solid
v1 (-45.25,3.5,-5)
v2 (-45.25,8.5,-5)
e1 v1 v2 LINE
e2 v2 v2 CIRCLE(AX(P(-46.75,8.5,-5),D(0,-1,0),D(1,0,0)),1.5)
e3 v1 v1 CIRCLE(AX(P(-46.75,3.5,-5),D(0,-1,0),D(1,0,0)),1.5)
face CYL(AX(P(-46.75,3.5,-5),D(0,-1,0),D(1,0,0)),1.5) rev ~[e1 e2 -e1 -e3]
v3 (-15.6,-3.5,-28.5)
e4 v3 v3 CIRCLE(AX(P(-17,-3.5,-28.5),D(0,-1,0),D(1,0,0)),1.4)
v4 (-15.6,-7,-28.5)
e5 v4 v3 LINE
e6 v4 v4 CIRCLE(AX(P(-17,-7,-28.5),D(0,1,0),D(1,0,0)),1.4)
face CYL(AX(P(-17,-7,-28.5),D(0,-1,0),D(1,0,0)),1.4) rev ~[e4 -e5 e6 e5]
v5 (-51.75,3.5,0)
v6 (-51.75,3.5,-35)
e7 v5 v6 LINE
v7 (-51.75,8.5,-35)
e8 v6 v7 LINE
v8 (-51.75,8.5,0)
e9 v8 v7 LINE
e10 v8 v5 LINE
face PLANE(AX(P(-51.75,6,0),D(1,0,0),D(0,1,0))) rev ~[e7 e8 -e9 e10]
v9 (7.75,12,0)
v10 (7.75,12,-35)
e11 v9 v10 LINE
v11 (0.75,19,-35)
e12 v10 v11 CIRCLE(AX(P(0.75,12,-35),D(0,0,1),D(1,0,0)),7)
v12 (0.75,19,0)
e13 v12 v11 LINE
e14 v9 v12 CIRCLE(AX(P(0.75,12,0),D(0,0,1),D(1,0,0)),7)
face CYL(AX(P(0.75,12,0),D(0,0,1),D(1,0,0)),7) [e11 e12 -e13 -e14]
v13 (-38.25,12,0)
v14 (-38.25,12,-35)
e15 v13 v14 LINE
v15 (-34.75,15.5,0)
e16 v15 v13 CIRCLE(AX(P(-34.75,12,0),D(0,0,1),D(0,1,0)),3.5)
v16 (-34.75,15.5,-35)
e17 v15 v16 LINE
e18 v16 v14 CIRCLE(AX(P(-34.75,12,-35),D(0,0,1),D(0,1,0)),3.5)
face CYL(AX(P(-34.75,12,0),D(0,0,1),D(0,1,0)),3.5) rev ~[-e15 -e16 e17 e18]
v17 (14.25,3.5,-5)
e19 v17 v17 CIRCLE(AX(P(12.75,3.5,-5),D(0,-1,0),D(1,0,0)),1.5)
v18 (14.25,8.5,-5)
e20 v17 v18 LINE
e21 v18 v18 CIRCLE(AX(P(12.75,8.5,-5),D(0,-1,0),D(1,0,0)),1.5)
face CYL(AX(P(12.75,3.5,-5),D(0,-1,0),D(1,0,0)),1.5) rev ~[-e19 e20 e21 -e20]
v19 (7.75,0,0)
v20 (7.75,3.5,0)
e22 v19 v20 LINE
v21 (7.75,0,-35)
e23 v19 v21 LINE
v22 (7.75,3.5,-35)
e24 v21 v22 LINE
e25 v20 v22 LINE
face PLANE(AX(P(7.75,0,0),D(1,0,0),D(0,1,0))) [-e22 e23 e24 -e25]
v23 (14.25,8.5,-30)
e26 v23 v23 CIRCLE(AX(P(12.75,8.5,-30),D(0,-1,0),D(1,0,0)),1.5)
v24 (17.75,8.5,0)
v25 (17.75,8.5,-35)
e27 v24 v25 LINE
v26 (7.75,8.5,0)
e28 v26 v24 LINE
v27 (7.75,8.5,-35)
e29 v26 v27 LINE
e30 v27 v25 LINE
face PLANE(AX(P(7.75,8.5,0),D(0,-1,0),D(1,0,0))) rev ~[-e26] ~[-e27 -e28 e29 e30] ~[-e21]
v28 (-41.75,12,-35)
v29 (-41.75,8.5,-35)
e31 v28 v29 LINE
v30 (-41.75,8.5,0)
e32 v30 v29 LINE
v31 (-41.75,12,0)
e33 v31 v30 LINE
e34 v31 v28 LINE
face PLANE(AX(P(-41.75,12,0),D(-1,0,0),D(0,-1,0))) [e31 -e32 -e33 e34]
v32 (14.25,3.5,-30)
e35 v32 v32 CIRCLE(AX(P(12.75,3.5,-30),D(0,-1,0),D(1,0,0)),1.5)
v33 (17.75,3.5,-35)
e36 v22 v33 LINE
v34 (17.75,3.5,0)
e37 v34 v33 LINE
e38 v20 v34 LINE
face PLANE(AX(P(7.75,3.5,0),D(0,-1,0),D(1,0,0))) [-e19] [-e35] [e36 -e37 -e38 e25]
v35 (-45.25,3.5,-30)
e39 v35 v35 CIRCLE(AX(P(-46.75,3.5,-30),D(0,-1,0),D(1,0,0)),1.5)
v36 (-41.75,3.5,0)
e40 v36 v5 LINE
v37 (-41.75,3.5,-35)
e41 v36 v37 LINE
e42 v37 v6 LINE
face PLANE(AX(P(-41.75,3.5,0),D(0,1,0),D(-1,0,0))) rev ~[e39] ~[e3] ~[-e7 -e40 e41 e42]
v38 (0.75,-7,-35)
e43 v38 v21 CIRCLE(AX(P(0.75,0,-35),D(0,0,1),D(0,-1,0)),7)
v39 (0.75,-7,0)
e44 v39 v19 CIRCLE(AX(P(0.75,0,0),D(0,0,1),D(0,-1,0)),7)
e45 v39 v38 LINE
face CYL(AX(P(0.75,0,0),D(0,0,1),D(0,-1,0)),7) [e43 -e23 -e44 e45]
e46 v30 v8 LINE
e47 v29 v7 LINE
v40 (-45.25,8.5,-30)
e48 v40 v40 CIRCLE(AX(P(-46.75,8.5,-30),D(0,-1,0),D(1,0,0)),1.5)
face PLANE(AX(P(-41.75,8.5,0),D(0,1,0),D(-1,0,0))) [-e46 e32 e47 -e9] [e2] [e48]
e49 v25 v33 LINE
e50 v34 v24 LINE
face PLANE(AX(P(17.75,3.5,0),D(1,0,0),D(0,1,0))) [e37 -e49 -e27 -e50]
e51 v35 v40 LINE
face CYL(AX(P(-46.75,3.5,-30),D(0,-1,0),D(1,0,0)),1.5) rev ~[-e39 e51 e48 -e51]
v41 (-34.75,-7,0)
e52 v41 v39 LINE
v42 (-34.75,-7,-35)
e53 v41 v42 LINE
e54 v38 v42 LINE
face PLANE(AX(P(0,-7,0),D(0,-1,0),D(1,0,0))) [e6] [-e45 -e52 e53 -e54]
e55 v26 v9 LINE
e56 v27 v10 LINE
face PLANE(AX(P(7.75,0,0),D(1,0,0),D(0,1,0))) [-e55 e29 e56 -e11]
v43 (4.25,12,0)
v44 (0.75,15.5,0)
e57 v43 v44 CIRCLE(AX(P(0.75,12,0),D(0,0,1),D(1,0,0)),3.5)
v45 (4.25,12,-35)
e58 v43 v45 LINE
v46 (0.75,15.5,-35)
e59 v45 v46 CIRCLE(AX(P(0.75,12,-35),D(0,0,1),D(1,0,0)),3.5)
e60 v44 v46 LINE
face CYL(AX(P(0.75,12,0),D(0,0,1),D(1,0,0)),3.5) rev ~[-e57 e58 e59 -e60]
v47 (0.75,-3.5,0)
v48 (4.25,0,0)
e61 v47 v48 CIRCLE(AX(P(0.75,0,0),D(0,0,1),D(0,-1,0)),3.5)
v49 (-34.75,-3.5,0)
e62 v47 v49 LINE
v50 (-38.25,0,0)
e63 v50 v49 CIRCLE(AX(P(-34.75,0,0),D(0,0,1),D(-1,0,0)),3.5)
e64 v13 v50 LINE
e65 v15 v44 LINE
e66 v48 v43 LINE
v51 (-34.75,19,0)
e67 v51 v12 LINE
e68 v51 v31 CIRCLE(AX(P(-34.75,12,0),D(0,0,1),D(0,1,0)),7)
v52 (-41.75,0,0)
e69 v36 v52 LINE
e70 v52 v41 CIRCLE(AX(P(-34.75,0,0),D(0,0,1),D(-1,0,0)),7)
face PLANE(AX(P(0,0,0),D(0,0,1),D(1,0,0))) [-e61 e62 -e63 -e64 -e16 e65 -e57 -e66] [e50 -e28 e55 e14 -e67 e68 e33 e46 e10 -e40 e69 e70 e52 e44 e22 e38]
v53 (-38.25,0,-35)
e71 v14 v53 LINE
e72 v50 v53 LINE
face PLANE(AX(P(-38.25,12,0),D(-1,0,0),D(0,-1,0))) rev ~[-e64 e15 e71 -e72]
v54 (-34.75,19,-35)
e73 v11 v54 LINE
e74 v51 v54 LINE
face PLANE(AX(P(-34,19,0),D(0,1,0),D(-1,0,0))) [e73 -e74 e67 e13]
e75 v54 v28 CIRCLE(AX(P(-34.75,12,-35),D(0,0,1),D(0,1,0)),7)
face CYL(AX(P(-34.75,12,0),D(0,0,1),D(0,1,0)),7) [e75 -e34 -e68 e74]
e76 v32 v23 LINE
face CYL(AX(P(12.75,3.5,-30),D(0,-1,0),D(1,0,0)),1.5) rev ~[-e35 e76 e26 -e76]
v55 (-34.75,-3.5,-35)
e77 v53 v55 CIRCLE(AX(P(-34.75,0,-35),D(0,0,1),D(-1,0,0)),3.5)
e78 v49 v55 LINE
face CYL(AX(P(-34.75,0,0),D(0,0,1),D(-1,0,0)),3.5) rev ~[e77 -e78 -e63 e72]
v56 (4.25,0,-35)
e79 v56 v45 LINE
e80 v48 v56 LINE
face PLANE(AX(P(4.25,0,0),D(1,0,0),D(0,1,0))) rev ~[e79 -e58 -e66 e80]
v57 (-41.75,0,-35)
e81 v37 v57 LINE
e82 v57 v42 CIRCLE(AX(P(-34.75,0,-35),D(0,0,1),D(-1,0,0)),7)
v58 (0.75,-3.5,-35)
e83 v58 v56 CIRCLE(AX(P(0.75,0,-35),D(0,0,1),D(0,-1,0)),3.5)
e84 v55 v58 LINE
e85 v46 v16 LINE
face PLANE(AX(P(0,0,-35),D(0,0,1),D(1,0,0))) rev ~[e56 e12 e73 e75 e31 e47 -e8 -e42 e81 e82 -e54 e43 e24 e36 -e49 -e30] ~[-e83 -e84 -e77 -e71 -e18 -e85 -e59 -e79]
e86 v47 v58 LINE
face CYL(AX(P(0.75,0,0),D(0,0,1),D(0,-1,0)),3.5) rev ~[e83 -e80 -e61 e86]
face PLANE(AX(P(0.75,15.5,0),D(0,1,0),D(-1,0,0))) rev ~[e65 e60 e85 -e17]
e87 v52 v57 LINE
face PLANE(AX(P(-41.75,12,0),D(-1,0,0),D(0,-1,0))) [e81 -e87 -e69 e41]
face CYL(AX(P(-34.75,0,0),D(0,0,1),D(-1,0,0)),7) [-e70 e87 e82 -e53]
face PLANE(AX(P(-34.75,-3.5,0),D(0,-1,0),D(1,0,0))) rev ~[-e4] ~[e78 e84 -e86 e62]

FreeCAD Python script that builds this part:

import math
import FreeCAD as App
import Part
import Sketcher

V = App.Vector
Q = App.Units.Quantity


def add_polygon(sketch, points):
    """Adds a closed chain of lines whose ends are joined by coincident constraints."""
    first, n = sketch.GeometryCount, len(points)
    for a, b in zip(points, points[1:] + points[:1]):
        sketch.addGeometry(Part.LineSegment(App.Vector(*a, 0), App.Vector(*b, 0)), False)
    for i in range(n):
        sketch.addConstraint(Sketcher.Constraint("Coincident", first + i, 2, first + (i + 1) % n, 1))

doc = App.newDocument("Part")
params = doc.addObject("Spreadsheet::Sheet", "Params")
for row, (alias, value) in enumerate([
    ("sketch1_radius", "3.5 mm"),
    ("sketch1_radius2", "7 mm"),
    ("sketch1_height", "12 mm"),
    ("sketch1_width", "35.5 mm"),
    ("pad1_length", "35 mm"),
    ("sketch2_width", "10 mm"),
    ("sketch2_height", "5 mm"),
    ("pad2_length", "35 mm"),
    ("sketch3_diameter", "3 mm"),
    ("pocket1_length", "10 mm"),
    ("sketch4_diameter", "2.8 mm"),
    ("pocket2_length", "10 mm"),
], start=1):
    params.set(f"A{row}", alias)
    params.set(f"B{row}", "=" + value)
    params.setAlias(f"B{row}", alias)

body = doc.addObject("PartDesign::Body", "Body")

# Sketch on XY plane
sketch1 = body.newObject("Sketcher::SketchObject", "Sketch")
sketch1.AttachmentSupport = (doc.getObject("XY_Plane"), [""])
sketch1.MapMode = "FlatFace"
sketch1.addGeometry([
    Part.ArcOfCircle(Part.Circle(V(-34.75, 12, 0), V(0, 0, 1), 7), math.radians(90), math.radians(180)),  # 0
    Part.LineSegment(V(-41.75, 12, 0), V(-41.75, 0, 0)),  # 1
    Part.ArcOfCircle(Part.Circle(V(-34.75, 0, 0), V(0, 0, 1), 7), math.radians(180), math.radians(270)),  # 2
    Part.LineSegment(V(-34.75, -7, 0), V(0.75, -7, 0)),  # 3
    Part.ArcOfCircle(Part.Circle(V(0.75, 0, 0), V(0, 0, 1), 7), math.radians(-90), math.radians(0)),  # 4
    Part.LineSegment(V(7.75, 0, 0), V(7.75, 12, 0)),  # 5
    Part.ArcOfCircle(Part.Circle(V(0.75, 12, 0), V(0, 0, 1), 7), math.radians(0), math.radians(90)),  # 6
    Part.LineSegment(V(0.75, 19, 0), V(-34.75, 19, 0)),  # 7
    Part.LineSegment(V(-38.25, 0, 0), V(-38.25, 12, 0)),  # 8
    Part.ArcOfCircle(Part.Circle(V(-34.75, 12, 0), V(0, 0, 1), 3.5), math.radians(90), math.radians(180)),  # 9
    Part.LineSegment(V(-34.75, 15.5, 0), V(0.75, 15.5, 0)),  # 10
    Part.ArcOfCircle(Part.Circle(V(0.75, 12, 0), V(0, 0, 1), 3.5), math.radians(0), math.radians(90)),  # 11
    Part.LineSegment(V(4.25, 12, 0), V(4.25, 0, 0)),  # 12
    Part.ArcOfCircle(Part.Circle(V(0.75, 0, 0), V(0, 0, 1), 3.5), math.radians(-90), math.radians(0)),  # 13
    Part.LineSegment(V(0.75, -3.5, 0), V(-34.75, -3.5, 0)),  # 14
    Part.ArcOfCircle(Part.Circle(V(-34.75, 0, 0), V(0, 0, 1), 3.5), math.radians(180), math.radians(270)),  # 15
], False)
sketch1.addConstraint([
    Sketcher.Constraint("Tangent", 0, 2, 1, 1),
    Sketcher.Constraint("Tangent", 1, 2, 2, 1),
    Sketcher.Constraint("Tangent", 2, 2, 3, 1),
    Sketcher.Constraint("Tangent", 3, 2, 4, 1),
    Sketcher.Constraint("Tangent", 4, 2, 5, 1),
    Sketcher.Constraint("Tangent", 5, 2, 6, 1),
    Sketcher.Constraint("Tangent", 6, 2, 7, 1),
    Sketcher.Constraint("Tangent", 7, 2, 0, 1),
    Sketcher.Constraint("Tangent", 8, 2, 9, 2),
    Sketcher.Constraint("Tangent", 9, 1, 10, 1),
    Sketcher.Constraint("Tangent", 10, 2, 11, 2),
    Sketcher.Constraint("Tangent", 11, 1, 12, 1),
    Sketcher.Constraint("Tangent", 12, 2, 13, 2),
    Sketcher.Constraint("Tangent", 13, 1, 14, 1),
    Sketcher.Constraint("Tangent", 14, 2, 15, 2),
    Sketcher.Constraint("Tangent", 15, 1, 8, 1),
    Sketcher.Constraint("Vertical", 1),
    Sketcher.Constraint("Horizontal", 3),
    Sketcher.Constraint("Vertical", 5),
    Sketcher.Constraint("Horizontal", 7),
    Sketcher.Constraint("Vertical", 8),
    Sketcher.Constraint("Horizontal", 10),
    Sketcher.Constraint("Vertical", 12),
    Sketcher.Constraint("Horizontal", 14),
    Sketcher.Constraint("Coincident", 9, 3, 0, 3),
    Sketcher.Constraint("Coincident", 11, 3, 6, 3),
    Sketcher.Constraint("Coincident", 13, 3, 4, 3),
    Sketcher.Constraint("Equal", 0, 2),
    Sketcher.Constraint("Equal", 2, 4),
    Sketcher.Constraint("Equal", 4, 6),
    Sketcher.Constraint("Equal", 13, 15),
    Sketcher.Constraint("PointOnObject", 2, 3, -1),
    Sketcher.Constraint("Radius", 9, Q("3.5 mm")),
    Sketcher.Constraint("Radius", 0, Q("7 mm")),
    Sketcher.Constraint("DistanceY", 1, 2, 1, 1, Q("12 mm")),
    Sketcher.Constraint("DistanceX", -1, 1, 4, 3, Q("0.75 mm")),
    Sketcher.Constraint("DistanceX", 3, 1, 3, 2, Q("35.5 mm")),
])
sketch1.setExpression("Constraints[32]", "Params.sketch1_radius")
sketch1.setExpression("Constraints[33]", "Params.sketch1_radius2")
sketch1.setExpression("Constraints[34]", "Params.sketch1_height")
sketch1.setExpression("Constraints[36]", "Params.sketch1_width")
pad1 = body.newObject("PartDesign::Pad", "Pad")
pad1.Profile = sketch1
pad1.setExpression("Length", "Params.pad1_length")
pad1.Reversed = True

# Sketch on XY plane
sketch2 = body.newObject("Sketcher::SketchObject", "Sketch001")
sketch2.AttachmentSupport = (doc.getObject("XY_Plane"), [""])
sketch2.MapMode = "FlatFace"
add_polygon(sketch2, [(-41.75, 8.5), (-51.75, 8.5), (-51.75, 3.5), (-41.75, 3.5)])  # lines 0-3
add_polygon(sketch2, [(7.75, 3.5), (17.75, 3.5), (17.75, 8.5), (7.75, 8.5)])  # lines 4-7
sketch2.addConstraint([
    Sketcher.Constraint("Horizontal", 0),
    Sketcher.Constraint("Vertical", 1),
    Sketcher.Constraint("Horizontal", 2),
    Sketcher.Constraint("Vertical", 3),
    Sketcher.Constraint("Horizontal", 4),
    Sketcher.Constraint("Vertical", 5),
    Sketcher.Constraint("Horizontal", 6),
    Sketcher.Constraint("Vertical", 7),
    Sketcher.Constraint("Horizontal", 2, 2, 4, 2),
    Sketcher.Constraint("Horizontal", 3, 2, 5, 2),
    Sketcher.Constraint("Equal", 2, 4),
    Sketcher.Constraint("DistanceX", 0, 2, 0, 1, Q("10 mm")),
    Sketcher.Constraint("DistanceY", 1, 2, 1, 1, Q("5 mm")),
    Sketcher.Constraint("DistanceY", -1, 1, 0, 2, Q("8.5 mm")),
    Sketcher.Constraint("DistanceX", 2, 2, 4, 2, Q("59.5 mm")),
    Sketcher.Constraint("DistanceX", 0, 2, -1, 1, Q("51.75 mm")),
])
sketch2.setExpression("Constraints[19]", "Params.sketch2_width")
sketch2.setExpression("Constraints[20]", "Params.sketch2_height")
pad2 = body.newObject("PartDesign::Pad", "Pad001")
pad2.Profile = sketch2
pad2.setExpression("Length", "Params.pad2_length")
pad2.Reversed = True

# Sketch on XZ plane
sketch3 = body.newObject("Sketcher::SketchObject", "Sketch002")
sketch3.AttachmentSupport = (doc.getObject("XZ_Plane"), [""])
sketch3.MapMode = "FlatFace"
sketch3.AttachmentOffset = App.Placement(V(0, 0, -3.5), App.Rotation())
sketch3.addGeometry([
    Part.Circle(V(-46.75, -5, 0), V(0, 0, 1), 1.5),
    Part.Circle(V(-46.75, -30, 0), V(0, 0, 1), 1.5),
    Part.Circle(V(12.75, -5, 0), V(0, 0, 1), 1.5),
    Part.Circle(V(12.75, -30, 0), V(0, 0, 1), 1.5),
], False)
sketch3.addConstraint([
    Sketcher.Constraint("Equal", 0, 1),
    Sketcher.Constraint("Equal", 1, 2),
    Sketcher.Constraint("Equal", 2, 3),
    Sketcher.Constraint("Horizontal", 0, 3, 2, 3),
    Sketcher.Constraint("Horizontal", 1, 3, 3, 3),
    Sketcher.Constraint("Vertical", 0, 3, 1, 3),
    Sketcher.Constraint("Vertical", 2, 3, 3, 3),
    Sketcher.Constraint("Diameter", 0, Q("3 mm")),
    Sketcher.Constraint("DistanceY", 0, 3, -1, 1, Q("5 mm")),
    Sketcher.Constraint("DistanceY", 1, 3, -1, 1, Q("30 mm")),
    Sketcher.Constraint("DistanceX", 0, 3, 2, 3, Q("59.5 mm")),
    Sketcher.Constraint("DistanceX", 0, 3, -1, 1, Q("46.75 mm")),
])
sketch3.setExpression("Constraints[7]", "Params.sketch3_diameter")
pocket1 = body.newObject("PartDesign::Pocket", "Pocket")
pocket1.Profile = sketch3
pocket1.setExpression("Length", "Params.pocket1_length")

# Sketch on XZ plane
sketch4 = body.newObject("Sketcher::SketchObject", "Sketch003")
sketch4.AttachmentSupport = (doc.getObject("XZ_Plane"), [""])
sketch4.MapMode = "FlatFace"
sketch4.AttachmentOffset = App.Placement(V(0, 0, 7), App.Rotation())
sketch4.addGeometry(Part.Circle(V(-17, -28.5, 0), V(0, 0, 1), 1.4), False)
sketch4.addConstraint([
    Sketcher.Constraint("Diameter", 0, Q("2.8 mm")),
    Sketcher.Constraint("DistanceX", 0, 3, -1, 1, Q("17 mm")),
    Sketcher.Constraint("DistanceY", 0, 3, -1, 1, Q("28.5 mm")),
])
sketch4.setExpression("Constraints[0]", "Params.sketch4_diameter")
pocket2 = body.newObject("PartDesign::Pocket", "Pocket001")
pocket2.Profile = sketch4
pocket2.setExpression("Length", "Params.pocket2_length")

doc.recompute()
